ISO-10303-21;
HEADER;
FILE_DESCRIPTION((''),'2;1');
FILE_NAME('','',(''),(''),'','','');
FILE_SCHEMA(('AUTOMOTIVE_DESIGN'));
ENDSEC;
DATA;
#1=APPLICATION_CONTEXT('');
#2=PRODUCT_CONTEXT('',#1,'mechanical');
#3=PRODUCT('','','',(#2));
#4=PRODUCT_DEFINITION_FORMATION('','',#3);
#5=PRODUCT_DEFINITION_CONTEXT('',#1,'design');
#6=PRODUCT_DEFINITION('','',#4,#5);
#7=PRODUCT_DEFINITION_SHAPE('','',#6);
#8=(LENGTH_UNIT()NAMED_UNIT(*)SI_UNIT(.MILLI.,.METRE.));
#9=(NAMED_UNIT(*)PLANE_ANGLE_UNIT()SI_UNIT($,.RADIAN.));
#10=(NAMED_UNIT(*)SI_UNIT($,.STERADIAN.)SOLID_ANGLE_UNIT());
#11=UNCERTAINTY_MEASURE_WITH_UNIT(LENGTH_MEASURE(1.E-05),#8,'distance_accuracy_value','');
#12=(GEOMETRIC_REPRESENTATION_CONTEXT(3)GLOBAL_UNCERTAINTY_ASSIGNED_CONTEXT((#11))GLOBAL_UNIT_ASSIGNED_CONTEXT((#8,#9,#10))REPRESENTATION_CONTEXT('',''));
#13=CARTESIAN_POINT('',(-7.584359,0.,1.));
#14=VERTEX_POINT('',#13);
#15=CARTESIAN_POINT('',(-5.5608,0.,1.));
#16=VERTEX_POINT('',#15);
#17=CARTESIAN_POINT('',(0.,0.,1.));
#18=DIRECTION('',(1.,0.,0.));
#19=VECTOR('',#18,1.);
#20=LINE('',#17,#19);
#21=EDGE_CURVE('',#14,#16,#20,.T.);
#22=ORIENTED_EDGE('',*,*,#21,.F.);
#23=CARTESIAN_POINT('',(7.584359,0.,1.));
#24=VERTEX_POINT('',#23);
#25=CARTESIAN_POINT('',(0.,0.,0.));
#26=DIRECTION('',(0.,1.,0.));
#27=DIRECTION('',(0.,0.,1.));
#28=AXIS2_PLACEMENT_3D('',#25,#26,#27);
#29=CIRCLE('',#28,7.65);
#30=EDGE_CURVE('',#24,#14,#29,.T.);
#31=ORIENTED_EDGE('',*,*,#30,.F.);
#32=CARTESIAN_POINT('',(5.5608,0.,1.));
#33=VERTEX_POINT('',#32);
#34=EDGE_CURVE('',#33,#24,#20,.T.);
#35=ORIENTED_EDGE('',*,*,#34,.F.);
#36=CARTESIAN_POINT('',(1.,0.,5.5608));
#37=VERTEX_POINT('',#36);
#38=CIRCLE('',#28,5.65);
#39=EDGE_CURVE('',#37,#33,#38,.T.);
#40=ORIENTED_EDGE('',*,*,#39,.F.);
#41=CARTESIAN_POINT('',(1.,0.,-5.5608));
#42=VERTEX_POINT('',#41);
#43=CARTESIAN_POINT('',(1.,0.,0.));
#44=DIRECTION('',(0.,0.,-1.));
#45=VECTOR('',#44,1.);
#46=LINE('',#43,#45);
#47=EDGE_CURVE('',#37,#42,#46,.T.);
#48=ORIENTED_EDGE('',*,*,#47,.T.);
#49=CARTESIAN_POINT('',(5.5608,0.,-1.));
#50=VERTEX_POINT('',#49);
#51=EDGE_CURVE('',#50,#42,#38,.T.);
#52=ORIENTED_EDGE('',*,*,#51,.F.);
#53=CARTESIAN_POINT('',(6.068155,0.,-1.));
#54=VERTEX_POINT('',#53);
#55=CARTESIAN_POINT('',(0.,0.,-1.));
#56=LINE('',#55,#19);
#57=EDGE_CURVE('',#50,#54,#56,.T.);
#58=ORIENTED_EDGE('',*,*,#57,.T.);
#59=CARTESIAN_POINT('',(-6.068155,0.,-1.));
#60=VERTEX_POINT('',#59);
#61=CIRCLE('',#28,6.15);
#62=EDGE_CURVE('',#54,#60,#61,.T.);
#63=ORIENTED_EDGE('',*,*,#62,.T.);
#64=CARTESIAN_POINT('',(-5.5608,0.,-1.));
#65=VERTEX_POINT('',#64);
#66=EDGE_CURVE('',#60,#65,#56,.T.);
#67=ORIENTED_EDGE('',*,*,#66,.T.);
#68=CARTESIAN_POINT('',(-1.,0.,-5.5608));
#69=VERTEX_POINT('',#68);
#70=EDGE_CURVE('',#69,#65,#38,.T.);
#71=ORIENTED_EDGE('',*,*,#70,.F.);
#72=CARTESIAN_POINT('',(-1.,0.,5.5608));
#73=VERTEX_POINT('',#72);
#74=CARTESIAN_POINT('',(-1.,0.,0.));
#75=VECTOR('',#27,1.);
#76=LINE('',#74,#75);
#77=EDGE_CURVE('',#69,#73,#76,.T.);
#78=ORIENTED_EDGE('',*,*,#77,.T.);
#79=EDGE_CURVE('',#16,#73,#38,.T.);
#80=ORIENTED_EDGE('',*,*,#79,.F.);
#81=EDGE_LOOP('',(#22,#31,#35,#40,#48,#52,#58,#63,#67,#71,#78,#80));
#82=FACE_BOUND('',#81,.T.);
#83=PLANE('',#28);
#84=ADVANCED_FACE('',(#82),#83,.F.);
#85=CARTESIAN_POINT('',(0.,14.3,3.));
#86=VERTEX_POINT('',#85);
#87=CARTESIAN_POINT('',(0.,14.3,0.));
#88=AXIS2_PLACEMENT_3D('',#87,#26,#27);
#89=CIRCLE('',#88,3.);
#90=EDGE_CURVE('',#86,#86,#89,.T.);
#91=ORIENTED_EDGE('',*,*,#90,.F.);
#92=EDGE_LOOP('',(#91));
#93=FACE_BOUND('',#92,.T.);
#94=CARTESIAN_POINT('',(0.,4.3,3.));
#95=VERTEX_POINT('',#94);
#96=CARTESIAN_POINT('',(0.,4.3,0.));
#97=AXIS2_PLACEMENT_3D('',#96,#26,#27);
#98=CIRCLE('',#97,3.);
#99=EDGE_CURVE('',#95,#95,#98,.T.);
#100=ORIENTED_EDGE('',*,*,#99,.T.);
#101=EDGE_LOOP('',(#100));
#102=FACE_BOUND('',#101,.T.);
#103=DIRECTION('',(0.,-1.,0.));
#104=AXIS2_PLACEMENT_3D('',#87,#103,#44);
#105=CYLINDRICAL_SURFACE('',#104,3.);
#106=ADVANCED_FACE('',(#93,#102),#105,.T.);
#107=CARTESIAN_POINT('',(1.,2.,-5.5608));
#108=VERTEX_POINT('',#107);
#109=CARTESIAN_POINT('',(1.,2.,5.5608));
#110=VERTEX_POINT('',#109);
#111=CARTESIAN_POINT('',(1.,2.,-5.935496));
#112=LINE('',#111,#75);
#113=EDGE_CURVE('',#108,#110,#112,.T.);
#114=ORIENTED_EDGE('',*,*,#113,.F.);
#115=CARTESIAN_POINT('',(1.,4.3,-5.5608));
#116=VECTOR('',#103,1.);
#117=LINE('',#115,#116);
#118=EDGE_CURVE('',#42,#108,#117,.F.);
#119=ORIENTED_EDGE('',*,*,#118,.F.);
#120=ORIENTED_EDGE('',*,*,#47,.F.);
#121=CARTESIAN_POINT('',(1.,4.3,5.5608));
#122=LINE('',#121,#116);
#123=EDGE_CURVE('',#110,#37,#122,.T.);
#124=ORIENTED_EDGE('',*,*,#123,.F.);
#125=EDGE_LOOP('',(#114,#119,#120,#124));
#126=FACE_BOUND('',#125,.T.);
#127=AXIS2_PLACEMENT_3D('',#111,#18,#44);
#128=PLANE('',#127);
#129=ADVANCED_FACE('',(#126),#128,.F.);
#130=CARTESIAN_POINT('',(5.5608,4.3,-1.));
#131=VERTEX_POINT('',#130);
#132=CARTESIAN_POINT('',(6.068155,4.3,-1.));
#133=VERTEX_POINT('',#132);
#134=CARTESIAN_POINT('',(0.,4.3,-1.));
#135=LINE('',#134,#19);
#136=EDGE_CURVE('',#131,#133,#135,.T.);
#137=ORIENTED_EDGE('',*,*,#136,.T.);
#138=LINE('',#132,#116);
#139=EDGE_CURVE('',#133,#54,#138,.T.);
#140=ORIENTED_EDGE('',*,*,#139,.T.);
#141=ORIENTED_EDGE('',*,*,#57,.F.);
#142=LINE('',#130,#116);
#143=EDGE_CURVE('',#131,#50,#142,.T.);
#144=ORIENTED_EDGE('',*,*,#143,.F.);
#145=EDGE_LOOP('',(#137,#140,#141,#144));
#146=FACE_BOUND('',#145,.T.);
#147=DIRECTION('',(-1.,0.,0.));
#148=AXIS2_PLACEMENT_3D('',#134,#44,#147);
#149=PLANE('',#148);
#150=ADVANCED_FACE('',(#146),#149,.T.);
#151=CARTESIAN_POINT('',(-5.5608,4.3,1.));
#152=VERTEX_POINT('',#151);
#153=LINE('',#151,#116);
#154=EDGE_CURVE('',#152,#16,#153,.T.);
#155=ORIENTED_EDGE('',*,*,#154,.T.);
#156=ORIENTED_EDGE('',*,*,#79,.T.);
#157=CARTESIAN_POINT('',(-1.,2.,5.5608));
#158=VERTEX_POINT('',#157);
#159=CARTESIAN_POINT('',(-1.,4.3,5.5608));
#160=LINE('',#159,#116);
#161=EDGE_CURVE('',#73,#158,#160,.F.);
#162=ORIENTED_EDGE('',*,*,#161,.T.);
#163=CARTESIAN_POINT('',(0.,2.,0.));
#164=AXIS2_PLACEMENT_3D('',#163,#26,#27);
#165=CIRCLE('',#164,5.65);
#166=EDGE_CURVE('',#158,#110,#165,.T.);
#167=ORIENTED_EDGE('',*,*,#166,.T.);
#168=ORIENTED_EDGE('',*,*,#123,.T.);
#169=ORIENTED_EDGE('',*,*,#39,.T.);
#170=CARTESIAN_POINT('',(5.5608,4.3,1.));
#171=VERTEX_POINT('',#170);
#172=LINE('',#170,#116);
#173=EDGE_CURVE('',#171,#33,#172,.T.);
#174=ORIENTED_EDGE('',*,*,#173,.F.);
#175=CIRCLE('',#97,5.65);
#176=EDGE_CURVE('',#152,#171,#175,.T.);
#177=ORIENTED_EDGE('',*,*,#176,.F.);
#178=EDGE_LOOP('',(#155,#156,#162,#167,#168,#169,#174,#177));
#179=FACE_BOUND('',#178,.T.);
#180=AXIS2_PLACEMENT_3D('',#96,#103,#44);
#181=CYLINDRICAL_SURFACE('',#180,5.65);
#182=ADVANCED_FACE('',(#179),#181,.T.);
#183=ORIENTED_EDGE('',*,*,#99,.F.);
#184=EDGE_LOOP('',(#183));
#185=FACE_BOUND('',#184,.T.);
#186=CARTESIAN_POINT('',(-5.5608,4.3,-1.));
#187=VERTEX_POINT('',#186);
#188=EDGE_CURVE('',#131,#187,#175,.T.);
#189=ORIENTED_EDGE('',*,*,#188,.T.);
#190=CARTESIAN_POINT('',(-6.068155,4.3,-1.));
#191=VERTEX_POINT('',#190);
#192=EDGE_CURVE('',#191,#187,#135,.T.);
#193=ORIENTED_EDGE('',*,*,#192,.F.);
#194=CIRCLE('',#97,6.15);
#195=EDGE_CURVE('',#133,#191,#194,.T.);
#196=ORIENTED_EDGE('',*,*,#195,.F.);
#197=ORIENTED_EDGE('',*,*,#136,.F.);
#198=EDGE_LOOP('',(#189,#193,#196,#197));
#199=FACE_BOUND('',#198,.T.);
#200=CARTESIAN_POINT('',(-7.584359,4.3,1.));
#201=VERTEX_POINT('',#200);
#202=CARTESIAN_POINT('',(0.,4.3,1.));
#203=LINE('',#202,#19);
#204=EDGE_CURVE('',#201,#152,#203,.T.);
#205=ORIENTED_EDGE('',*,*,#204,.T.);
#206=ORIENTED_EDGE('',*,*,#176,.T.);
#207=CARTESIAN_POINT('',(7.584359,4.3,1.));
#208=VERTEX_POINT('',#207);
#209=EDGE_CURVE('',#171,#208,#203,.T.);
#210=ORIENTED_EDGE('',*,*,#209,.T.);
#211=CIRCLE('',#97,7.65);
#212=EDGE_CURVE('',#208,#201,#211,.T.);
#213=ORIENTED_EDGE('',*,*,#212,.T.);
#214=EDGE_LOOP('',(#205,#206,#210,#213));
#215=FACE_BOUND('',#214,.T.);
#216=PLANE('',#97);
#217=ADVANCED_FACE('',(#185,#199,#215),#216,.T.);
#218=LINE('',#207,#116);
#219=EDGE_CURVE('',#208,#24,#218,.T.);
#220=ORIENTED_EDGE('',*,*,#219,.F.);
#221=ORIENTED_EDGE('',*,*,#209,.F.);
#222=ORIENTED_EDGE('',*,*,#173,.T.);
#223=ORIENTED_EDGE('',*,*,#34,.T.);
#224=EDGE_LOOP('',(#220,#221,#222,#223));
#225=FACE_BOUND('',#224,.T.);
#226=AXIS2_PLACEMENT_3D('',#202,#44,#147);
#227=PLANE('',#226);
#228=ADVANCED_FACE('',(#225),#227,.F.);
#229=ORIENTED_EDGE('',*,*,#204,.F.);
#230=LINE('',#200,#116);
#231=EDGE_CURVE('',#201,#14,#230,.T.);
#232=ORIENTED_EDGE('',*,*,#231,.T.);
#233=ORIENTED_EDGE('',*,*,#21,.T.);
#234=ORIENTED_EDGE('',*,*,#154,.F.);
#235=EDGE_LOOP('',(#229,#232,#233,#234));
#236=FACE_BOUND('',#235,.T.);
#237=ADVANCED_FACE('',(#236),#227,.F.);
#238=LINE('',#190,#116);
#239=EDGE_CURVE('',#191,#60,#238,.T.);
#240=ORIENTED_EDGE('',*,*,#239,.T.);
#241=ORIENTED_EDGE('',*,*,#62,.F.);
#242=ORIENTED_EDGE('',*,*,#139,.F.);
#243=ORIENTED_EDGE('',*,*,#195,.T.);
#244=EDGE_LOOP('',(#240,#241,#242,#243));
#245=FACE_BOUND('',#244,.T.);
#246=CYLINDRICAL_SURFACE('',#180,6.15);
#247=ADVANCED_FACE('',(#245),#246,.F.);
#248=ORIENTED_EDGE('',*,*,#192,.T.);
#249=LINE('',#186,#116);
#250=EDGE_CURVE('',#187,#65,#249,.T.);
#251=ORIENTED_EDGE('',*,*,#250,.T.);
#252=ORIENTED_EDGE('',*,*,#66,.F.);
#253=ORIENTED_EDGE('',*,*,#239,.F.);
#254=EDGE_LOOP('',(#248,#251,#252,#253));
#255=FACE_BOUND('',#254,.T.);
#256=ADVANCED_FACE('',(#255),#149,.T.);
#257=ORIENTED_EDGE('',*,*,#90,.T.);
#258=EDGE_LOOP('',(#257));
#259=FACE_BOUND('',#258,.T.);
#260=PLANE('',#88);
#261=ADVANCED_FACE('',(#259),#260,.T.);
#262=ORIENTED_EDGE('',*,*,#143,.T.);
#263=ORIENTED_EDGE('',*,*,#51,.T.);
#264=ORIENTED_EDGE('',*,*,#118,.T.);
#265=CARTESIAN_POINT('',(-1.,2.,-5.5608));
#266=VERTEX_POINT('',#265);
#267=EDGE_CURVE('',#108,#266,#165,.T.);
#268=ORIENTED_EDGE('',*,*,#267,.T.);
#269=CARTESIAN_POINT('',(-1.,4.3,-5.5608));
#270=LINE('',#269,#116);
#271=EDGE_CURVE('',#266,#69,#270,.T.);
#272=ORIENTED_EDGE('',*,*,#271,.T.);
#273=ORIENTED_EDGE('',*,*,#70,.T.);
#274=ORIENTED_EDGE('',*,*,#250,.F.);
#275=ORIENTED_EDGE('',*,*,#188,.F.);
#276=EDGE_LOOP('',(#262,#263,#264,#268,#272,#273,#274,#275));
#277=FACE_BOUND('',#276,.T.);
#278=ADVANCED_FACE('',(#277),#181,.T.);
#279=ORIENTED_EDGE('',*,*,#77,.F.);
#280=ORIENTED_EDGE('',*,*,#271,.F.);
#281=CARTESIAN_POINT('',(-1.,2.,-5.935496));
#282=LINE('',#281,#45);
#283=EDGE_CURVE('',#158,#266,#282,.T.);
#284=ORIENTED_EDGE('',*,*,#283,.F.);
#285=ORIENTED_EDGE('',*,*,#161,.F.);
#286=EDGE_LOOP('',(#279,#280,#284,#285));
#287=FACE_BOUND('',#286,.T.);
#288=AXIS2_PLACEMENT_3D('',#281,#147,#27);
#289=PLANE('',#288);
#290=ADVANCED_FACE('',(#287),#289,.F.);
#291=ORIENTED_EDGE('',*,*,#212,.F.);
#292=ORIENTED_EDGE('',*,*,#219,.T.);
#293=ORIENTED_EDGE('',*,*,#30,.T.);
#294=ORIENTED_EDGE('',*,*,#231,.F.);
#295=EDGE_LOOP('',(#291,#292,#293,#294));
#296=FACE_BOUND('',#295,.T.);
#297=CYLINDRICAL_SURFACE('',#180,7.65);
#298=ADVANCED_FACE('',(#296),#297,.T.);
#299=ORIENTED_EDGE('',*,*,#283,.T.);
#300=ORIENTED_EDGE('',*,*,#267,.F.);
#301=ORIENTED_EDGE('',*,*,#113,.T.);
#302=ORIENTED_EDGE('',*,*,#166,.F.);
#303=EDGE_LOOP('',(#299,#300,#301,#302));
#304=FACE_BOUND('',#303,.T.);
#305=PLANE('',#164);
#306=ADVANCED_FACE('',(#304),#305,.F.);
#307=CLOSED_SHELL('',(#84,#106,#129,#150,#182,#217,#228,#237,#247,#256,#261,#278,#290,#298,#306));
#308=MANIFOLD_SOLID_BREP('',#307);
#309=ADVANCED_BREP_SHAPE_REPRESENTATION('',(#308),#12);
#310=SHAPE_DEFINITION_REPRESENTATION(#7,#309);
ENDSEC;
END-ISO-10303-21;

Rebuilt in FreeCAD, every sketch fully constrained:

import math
import FreeCAD as App
import Part
import Sketcher
Q = App.Units.Quantity


def add_polygon(sketch, points):
    """Adds a closed chain of lines whose ends are joined by coincident constraints."""
    first, n = sketch.GeometryCount, len(points)
    for a, b in zip(points, points[1:] + points[:1]):
        sketch.addGeometry(Part.LineSegment(App.Vector(*a, 0), App.Vector(*b, 0)), False)
    for i in range(n):
        sketch.addConstraint(Sketcher.Constraint("Coincident", first + i, 2, first + (i + 1) % n, 1))

doc = App.newDocument("Part")
body = doc.addObject("PartDesign::Body", "Body")

sketch1 = body.newObject("Sketcher::SketchObject", "Sketch")
sketch1.AttachmentSupport = (doc.getObject("XZ_Plane"), [""])
sketch1.MapMode = "FlatFace"
sketch1.addGeometry(Part.ArcOfCircle(Part.Circle(App.Vector(0, 0, 0), App.Vector(0, 0, 1), 7.7), math.radians(-172), math.radians(-8)), False)
sketch1.addGeometry(Part.ArcOfCircle(Part.Circle(App.Vector(0, 0, 0), App.Vector(0, 0, 1), 7.6), math.radians(172.49), math.radians(187.51)), False)
sketch1.addGeometry(Part.LineSegment(App.Vector(-7.6, 1, 0), App.Vector(-5.6, 1, 0)), False)
sketch1.addGeometry(Part.ArcOfCircle(Part.Circle(App.Vector(0, 0, 0), App.Vector(0, 0, 1), 5.7), math.radians(10), math.radians(170)), False)
sketch1.addGeometry(Part.LineSegment(App.Vector(5.6, 1, 0), App.Vector(7.6, 1, 0)), False)
sketch1.addGeometry(Part.ArcOfCircle(Part.Circle(App.Vector(0, 0, 0), App.Vector(0, 0, 1), 7.7), math.radians(0), math.radians(7.51)), False)
sketch1.addGeometry(Part.ArcOfCircle(Part.Circle(App.Vector(0, 0, 0), App.Vector(0, 0, 1), 7.7), math.radians(-7.51), math.radians(0)), False)
sketch1.addGeometry(Part.ArcOfCircle(Part.Circle(App.Vector(0, 0, 0), App.Vector(0, 0, 1), 6.1), math.radians(-171), math.radians(-9)), False)
sketch1.addGeometry(Part.LineSegment(App.Vector(6.1, -1, 0), App.Vector(5.6, -1, 0)), False)
sketch1.addGeometry(Part.ArcOfCircle(Part.Circle(App.Vector(0, 0, 0), App.Vector(0, 0, 1), 5.7), math.radians(-170), math.radians(-10)), False)
sketch1.addGeometry(Part.LineSegment(App.Vector(-5.6, -1, 0), App.Vector(-6.1, -1, 0)), False)
sketch1.addConstraint(Sketcher.Constraint("Tangent", 0, 1, 1, 2))
sketch1.addConstraint(Sketcher.Constraint("Coincident", 1, 1, 2, 1))
sketch1.addConstraint(Sketcher.Constraint("Coincident", 2, 2, 3, 2))
sketch1.addConstraint(Sketcher.Constraint("Coincident", 3, 1, 4, 1))
sketch1.addConstraint(Sketcher.Constraint("Coincident", 4, 2, 5, 2))
sketch1.addConstraint(Sketcher.Constraint("Tangent", 5, 1, 6, 2))
sketch1.addConstraint(Sketcher.Constraint("Tangent", 6, 1, 0, 2))
sketch1.addConstraint(Sketcher.Constraint("Coincident", 7, 2, 8, 1))
sketch1.addConstraint(Sketcher.Constraint("Coincident", 8, 2, 9, 2))
sketch1.addConstraint(Sketcher.Constraint("Coincident", 9, 1, 10, 1))
sketch1.addConstraint(Sketcher.Constraint("Coincident", 10, 2, 7, 1))
sketch1.addConstraint(Sketcher.Constraint("Horizontal", 2))
sketch1.addConstraint(Sketcher.Constraint("Horizontal", 4))
sketch1.addConstraint(Sketcher.Constraint("Horizontal", 8))
sketch1.addConstraint(Sketcher.Constraint("Horizontal", 10))
sketch1.addConstraint(Sketcher.Constraint("Coincident", 0, 3, -1, 1))
sketch1.addConstraint(Sketcher.Constraint("Coincident", 3, 3, -1, 1))
sketch1.addConstraint(Sketcher.Constraint("Coincident", 5, 3, -1, 1))
sketch1.addConstraint(Sketcher.Constraint("Coincident", 7, 3, -1, 1))
sketch1.addConstraint(Sketcher.Constraint("Coincident", 9, 3, -1, 1))
sketch1.addConstraint(Sketcher.Constraint("Equal", 0, 1))
sketch1.addConstraint(Sketcher.Constraint("Equal", 3, 9))
sketch1.addConstraint(Sketcher.Constraint("PointOnObject", 5, 1, -1))
sketch1.addConstraint(Sketcher.Constraint("Horizontal", 2, 2, 3, 1))
sketch1.addConstraint(Sketcher.Constraint("Horizontal", 0, 1, 6, 1))
sketch1.addConstraint(Sketcher.Constraint("Horizontal", 6, 1, 7, 2))
sketch1.addConstraint(Sketcher.Constraint("Horizontal", 8, 2, 9, 1))
sketch1.addConstraint(Sketcher.Constraint("Vertical", 0, 1, 1, 1))
sketch1.addConstraint(Sketcher.Constraint("Radius", 0, Q("7.65 mm")))
sketch1.addConstraint(Sketcher.Constraint("Radius", 3, Q("5.65 mm")))
sketch1.addConstraint(Sketcher.Constraint("Radius", 7, Q("6.15 mm")))
sketch1.addConstraint(Sketcher.Constraint("DistanceY", 0, 1, -1, 1, Q("1 mm")))
pad1 = body.newObject("PartDesign::Pad", "Pad")
pad1.Profile = sketch1
pad1.Length = 4.3
pad1.Reversed = True

sketch2 = body.newObject("Sketcher::SketchObject", "Sketch001")
sketch2.AttachmentSupport = (doc.getObject("XZ_Plane"), [""])
sketch2.MapMode = "FlatFace"
sketch2.AttachmentOffset = App.Placement(App.Vector(0, 0, -4.3), App.Rotation())
sketch2.addGeometry(Part.Circle(App.Vector(0, 0, 0), App.Vector(0, 0, 1), 3), False)
sketch2.addConstraint(Sketcher.Constraint("Coincident", 0, 3, -1, 1))
sketch2.addConstraint(Sketcher.Constraint("Diameter", 0, Q("6 mm")))
pad2 = body.newObject("PartDesign::Pad", "Pad001")
pad2.Profile = sketch2
pad2.Length = 10
pad2.Reversed = True

sketch3 = body.newObject("Sketcher::SketchObject", "Sketch002")
sketch3.AttachmentSupport = (doc.getObject("XZ_Plane"), [""])
sketch3.MapMode = "FlatFace"
add_polygon(sketch3, [(-1, 5.9), (-1, -5.9), (1, -5.9), (1, 5.9)])
sketch3.addConstraint(Sketcher.Constraint("Vertical", 0))
sketch3.addConstraint(Sketcher.Constraint("Horizontal", 1))
sketch3.addConstraint(Sketcher.Constraint("Vertical", 2))
sketch3.addConstraint(Sketcher.Constraint("Horizontal", 3))
sketch3.addConstraint(Sketcher.Constraint("Symmetric", 0, 2, 2, 2, -1, 1))
sketch3.addConstraint(Sketcher.Constraint("DistanceX", 1, 1, 1, 2, Q("2 mm")))
sketch3.addConstraint(Sketcher.Constraint("DistanceY", 0, 2, 0, 1, Q("11.870993 mm")))
pocket1 = body.newObject("PartDesign::Pocket", "Pocket")
pocket1.Profile = sketch3
pocket1.Length = 2

doc.recompute()
